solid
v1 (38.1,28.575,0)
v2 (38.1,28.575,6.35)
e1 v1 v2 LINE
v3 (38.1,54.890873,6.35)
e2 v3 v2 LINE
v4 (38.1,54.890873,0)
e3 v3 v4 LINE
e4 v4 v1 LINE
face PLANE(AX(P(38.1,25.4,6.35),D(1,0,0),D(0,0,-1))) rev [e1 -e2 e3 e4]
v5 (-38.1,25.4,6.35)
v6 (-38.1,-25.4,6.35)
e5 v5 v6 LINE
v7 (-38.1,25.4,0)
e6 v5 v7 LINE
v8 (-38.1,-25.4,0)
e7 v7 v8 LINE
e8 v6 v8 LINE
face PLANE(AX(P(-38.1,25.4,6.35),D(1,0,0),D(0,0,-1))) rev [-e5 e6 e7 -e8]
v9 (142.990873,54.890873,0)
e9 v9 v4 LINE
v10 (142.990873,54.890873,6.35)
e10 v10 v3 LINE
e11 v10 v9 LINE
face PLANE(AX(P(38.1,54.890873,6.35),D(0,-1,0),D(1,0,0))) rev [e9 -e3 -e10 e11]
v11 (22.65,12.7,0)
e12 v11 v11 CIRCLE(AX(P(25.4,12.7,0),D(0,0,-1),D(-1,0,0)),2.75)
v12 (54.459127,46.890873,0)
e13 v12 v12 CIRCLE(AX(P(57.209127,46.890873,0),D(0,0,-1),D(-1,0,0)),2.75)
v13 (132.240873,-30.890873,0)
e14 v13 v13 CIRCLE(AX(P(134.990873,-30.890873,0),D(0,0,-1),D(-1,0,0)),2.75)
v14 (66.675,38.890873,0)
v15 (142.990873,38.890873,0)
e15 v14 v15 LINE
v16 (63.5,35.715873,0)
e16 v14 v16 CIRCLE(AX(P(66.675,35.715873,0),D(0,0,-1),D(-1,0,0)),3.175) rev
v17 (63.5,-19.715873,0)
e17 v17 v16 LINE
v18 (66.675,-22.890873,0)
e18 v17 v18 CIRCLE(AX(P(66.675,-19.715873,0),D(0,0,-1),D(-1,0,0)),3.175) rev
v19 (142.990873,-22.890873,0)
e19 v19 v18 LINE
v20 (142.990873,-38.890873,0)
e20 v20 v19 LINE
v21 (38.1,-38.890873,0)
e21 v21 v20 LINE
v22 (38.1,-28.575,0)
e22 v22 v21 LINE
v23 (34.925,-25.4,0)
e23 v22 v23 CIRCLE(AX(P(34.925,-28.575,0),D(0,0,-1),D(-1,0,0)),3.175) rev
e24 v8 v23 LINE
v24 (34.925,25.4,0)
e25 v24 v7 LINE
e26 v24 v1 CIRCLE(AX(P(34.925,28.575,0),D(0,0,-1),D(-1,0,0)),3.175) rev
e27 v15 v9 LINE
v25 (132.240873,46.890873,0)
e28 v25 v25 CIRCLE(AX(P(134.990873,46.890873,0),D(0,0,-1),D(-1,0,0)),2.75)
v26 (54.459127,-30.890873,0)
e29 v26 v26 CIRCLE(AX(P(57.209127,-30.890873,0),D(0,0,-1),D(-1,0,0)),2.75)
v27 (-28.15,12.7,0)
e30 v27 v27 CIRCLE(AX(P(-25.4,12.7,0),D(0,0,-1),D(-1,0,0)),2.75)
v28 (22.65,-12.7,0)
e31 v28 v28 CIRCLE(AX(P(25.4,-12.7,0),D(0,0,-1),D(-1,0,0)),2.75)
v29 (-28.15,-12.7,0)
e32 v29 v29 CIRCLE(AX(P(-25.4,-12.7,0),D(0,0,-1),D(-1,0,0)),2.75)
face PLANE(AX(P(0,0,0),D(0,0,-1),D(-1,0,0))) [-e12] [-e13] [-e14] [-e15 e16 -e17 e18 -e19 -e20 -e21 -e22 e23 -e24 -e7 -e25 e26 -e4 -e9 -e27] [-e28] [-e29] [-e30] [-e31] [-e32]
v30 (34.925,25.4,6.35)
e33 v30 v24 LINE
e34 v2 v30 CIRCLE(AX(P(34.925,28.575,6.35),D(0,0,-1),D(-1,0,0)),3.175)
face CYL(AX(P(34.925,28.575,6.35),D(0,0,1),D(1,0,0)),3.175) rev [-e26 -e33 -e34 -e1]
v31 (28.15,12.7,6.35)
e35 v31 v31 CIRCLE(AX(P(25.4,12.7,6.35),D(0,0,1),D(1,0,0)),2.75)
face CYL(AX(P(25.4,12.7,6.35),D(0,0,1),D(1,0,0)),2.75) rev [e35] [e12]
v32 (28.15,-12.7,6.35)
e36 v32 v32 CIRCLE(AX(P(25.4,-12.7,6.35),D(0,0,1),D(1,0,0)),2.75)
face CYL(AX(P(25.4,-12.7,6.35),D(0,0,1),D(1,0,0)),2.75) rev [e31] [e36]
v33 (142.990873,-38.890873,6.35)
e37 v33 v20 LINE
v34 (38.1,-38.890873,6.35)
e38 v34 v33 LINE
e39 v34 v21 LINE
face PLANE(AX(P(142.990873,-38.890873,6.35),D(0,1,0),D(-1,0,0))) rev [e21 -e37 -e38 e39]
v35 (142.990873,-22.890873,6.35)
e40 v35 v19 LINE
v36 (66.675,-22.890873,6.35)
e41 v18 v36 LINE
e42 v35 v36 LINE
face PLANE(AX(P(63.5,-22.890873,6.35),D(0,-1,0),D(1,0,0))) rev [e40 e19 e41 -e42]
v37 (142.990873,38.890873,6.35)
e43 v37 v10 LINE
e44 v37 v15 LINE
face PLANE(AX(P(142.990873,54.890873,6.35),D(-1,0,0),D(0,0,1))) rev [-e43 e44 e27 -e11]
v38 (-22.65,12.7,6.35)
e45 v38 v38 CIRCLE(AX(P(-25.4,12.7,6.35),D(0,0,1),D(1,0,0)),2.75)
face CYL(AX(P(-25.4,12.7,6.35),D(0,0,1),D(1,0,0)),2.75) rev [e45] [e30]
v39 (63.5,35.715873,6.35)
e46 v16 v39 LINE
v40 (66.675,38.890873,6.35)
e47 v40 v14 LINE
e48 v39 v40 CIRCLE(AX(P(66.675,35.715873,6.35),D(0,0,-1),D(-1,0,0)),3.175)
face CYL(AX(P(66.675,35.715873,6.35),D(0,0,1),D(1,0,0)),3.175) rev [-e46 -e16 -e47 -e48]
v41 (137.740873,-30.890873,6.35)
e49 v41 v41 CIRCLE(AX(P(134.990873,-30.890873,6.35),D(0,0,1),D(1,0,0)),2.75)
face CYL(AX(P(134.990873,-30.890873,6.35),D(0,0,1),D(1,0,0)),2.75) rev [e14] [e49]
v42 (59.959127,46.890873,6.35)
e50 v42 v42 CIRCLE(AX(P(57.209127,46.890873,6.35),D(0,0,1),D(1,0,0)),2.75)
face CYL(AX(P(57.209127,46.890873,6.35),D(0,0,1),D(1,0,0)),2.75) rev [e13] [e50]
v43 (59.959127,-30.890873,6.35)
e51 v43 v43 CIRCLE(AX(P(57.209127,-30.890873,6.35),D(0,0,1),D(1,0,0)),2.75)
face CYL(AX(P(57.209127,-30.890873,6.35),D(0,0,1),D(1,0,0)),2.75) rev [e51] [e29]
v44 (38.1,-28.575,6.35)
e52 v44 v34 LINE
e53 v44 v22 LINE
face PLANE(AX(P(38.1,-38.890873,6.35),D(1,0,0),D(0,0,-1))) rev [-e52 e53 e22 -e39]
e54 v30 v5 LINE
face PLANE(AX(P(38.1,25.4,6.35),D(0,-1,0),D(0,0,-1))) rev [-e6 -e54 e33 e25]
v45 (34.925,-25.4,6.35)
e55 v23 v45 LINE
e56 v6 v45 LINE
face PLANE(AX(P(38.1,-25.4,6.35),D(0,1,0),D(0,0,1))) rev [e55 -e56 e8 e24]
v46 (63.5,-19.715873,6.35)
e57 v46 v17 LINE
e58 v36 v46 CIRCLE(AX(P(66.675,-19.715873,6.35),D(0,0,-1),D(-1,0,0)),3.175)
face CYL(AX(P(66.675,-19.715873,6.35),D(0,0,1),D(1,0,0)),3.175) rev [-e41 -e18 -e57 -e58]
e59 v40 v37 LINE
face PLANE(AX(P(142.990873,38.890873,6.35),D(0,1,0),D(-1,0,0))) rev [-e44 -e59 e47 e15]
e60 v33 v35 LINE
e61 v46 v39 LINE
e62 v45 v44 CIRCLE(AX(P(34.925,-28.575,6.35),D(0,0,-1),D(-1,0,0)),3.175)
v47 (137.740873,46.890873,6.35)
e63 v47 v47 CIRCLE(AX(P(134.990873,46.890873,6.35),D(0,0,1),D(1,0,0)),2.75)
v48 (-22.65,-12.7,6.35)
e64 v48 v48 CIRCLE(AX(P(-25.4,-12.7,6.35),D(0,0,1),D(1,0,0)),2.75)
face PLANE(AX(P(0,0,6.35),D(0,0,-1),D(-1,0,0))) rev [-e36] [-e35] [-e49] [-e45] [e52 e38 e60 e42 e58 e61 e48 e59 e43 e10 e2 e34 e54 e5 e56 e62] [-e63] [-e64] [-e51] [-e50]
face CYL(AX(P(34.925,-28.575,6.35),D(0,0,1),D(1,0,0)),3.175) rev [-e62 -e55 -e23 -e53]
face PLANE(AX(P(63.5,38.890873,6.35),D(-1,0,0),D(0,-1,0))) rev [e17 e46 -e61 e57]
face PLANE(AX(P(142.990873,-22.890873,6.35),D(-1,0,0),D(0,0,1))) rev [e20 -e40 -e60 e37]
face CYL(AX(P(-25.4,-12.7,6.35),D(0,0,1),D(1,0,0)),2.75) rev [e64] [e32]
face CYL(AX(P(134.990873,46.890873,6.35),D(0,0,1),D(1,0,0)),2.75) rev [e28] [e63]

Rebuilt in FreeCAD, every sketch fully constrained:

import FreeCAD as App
import Part
import Sketcher

V = App.Vector
Q = App.Units.Quantity


def edges_at(feature, points):
    """Names of the edges that pass closest to the given points."""
    edges = feature.Shape.Edges
    near = lambda p: min(range(len(edges)), key=lambda i: edges[i].distToShape(Part.Vertex(*p))[0])
    return sorted({f"Edge{near(p) + 1}" for p in points})


def add_polygon(sketch, points):
    """Adds a closed chain of lines whose ends are joined by coincident constraints."""
    first, n = sketch.GeometryCount, len(points)
    for a, b in zip(points, points[1:] + points[:1]):
        sketch.addGeometry(Part.LineSegment(App.Vector(*a, 0), App.Vector(*b, 0)), False)
    for i in range(n):
        sketch.addConstraint(Sketcher.Constraint("Coincident", first + i, 2, first + (i + 1) % n, 1))

doc = App.newDocument("Part")
body = doc.addObject("PartDesign::Body", "Body")

sketch1 = body.newObject("Sketcher::SketchObject", "Sketch")
sketch1.AttachmentSupport = (doc.getObject("XY_Plane"), [""])
sketch1.MapMode = "FlatFace"
add_polygon(sketch1, [(38.1, 54.890873), (38.1, 25.4), (-38.1, 25.4), (-38.1, -25.4), (38.1, -25.4), (38.1, -38.890873), (142.990873, -38.890873), (142.990873, -22.890873), (63.5, -22.890873), (63.5, 38.890873), (142.990873, 38.890873), (142.990873, 54.890873)])
sketch1.addConstraint(Sketcher.Constraint("Vertical", 0))
sketch1.addConstraint(Sketcher.Constraint("Horizontal", 1))
sketch1.addConstraint(Sketcher.Constraint("Vertical", 2))
sketch1.addConstraint(Sketcher.Constraint("Horizontal", 3))
sketch1.addConstraint(Sketcher.Constraint("Vertical", 4))
sketch1.addConstraint(Sketcher.Constraint("Horizontal", 5))
sketch1.addConstraint(Sketcher.Constraint("Vertical", 6))
sketch1.addConstraint(Sketcher.Constraint("Horizontal", 7))
sketch1.addConstraint(Sketcher.Constraint("Vertical", 8))
sketch1.addConstraint(Sketcher.Constraint("Horizontal", 9))
sketch1.addConstraint(Sketcher.Constraint("Vertical", 10))
sketch1.addConstraint(Sketcher.Constraint("Horizontal", 11))
sketch1.addConstraint(Sketcher.Constraint("Symmetric", 0, 2, 2, 2, -1, 1))
sketch1.addConstraint(Sketcher.Constraint("Symmetric", 5, 2, 9, 2, -1))
sketch1.addConstraint(Sketcher.Constraint("Vertical", 0, 2, 3, 2))
sketch1.addConstraint(Sketcher.Constraint("Equal", 6, 10))
sketch1.addConstraint(Sketcher.Constraint("DistanceX", 1, 2, 1, 1, Q("3 in")))
sketch1.addConstraint(Sketcher.Constraint("DistanceY", 2, 2, 2, 1, Q("2 in")))
sketch1.addConstraint(Sketcher.Constraint("DistanceX", 3, 2, 7, 2, Q("1 in")))
sketch1.addConstraint(Sketcher.Constraint("DistanceY", 6, 1, 6, 2, 16.0))
sketch1.addConstraint(Sketcher.Constraint("DistanceX", 5, 1, 5, 2, 104.890873))
sketch1.addConstraint(Sketcher.Constraint("DistanceY", 0, 2, 0, 1, 29.490873))
pad1 = body.newObject("PartDesign::Pad", "Pad")
pad1.Profile = sketch1
pad1.Length = Q("0.25 in")

sketch2 = body.newObject("Sketcher::SketchObject", "Sketch001")
sketch2.AttachmentSupport = (doc.getObject("XY_Plane"), [""])
sketch2.MapMode = "FlatFace"
sketch2.AttachmentOffset = App.Placement(V(0, 0, 0.25 * 25.4), App.Rotation())
sketch2.addGeometry(Part.Circle(V(134.990873, 46.890873, 0), V(0, 0, 1), 2.75), False)
sketch2.addGeometry(Part.Circle(V(134.990873, -30.890873, 0), V(0, 0, 1), 2.75), False)
sketch2.addGeometry(Part.Circle(V(57.209127, 46.890873, 0), V(0, 0, 1), 2.75), False)
sketch2.addGeometry(Part.Circle(V(57.209127, -30.890873, 0), V(0, 0, 1), 2.75), False)
sketch2.addConstraint(Sketcher.Constraint("Equal", 0, 1))
sketch2.addConstraint(Sketcher.Constraint("Equal", 1, 2))
sketch2.addConstraint(Sketcher.Constraint("Equal", 2, 3))
sketch2.addConstraint(Sketcher.Constraint("Horizontal", 0, 3, 2, 3))
sketch2.addConstraint(Sketcher.Constraint("Horizontal", 1, 3, 3, 3))
sketch2.addConstraint(Sketcher.Constraint("Vertical", 0, 3, 1, 3))
sketch2.addConstraint(Sketcher.Constraint("Vertical", 2, 3, 3, 3))
sketch2.addConstraint(Sketcher.Constraint("Diameter", 0, 5.5))
sketch2.addConstraint(Sketcher.Constraint("DistanceX", -1, 1, 0, 3, 134.990873))
sketch2.addConstraint(Sketcher.Constraint("DistanceY", -1, 1, 0, 3, 46.890873))
sketch2.addConstraint(Sketcher.Constraint("DistanceY", 1, 3, -1, 1, 30.890873))
sketch2.addConstraint(Sketcher.Constraint("DistanceX", -1, 1, 2, 3, 57.209127))
doc.recompute()
hole = body.newObject("PartDesign::Hole", "Hole")
hole.Profile = sketch2
hole.ThreadType = "None"
hole.Diameter = 5.5
hole.DepthType = "Dimension"
hole.Depth = 18.75
hole.DrillPoint = "Angled"
hole.DrillPointAngle = 118
doc.recompute()

fillet = body.newObject("PartDesign::Fillet", "Fillet")
fillet.Base = (hole, edges_at(hole, [
    (38.1, 25.4, 3.175),
    (63.5, 38.891, 3.175),
    (63.5, -22.891, 3.175),
    (38.1, -25.4, 3.175),
]))
fillet.Radius = Q("0.125 in")

sketch3 = body.newObject("Sketcher::SketchObject", "Sketch002")
sketch3.AttachmentSupport = (doc.getObject("XY_Plane"), [""])
sketch3.MapMode = "FlatFace"
sketch3.AttachmentOffset = App.Placement(V(0, 0, 0.25 * 25.4), App.Rotation())
sketch3.addGeometry(Part.Circle(V(-25.4, 12.7, 0), V(0, 0, 1), 2.75), False)
sketch3.addGeometry(Part.Circle(V(25.4, 12.7, 0), V(0, 0, 1), 2.75), False)
sketch3.addGeometry(Part.Circle(V(25.4, -12.7, 0), V(0, 0, 1), 2.75), False)
sketch3.addGeometry(Part.Circle(V(-25.4, -12.7, 0), V(0, 0, 1), 2.75), False)
sketch3.addConstraint(Sketcher.Constraint("Equal", 0, 1))
sketch3.addConstraint(Sketcher.Constraint("Equal", 1, 2))
sketch3.addConstraint(Sketcher.Constraint("Equal", 2, 3))
sketch3.addConstraint(Sketcher.Constraint("Symmetric", 0, 3, 2, 3, -1, 1))
sketch3.addConstraint(Sketcher.Constraint("Symmetric", 1, 3, 3, 3, -1, 1))
sketch3.addConstraint(Sketcher.Constraint("Symmetric", 0, 3, 1, 3, -2))
sketch3.addConstraint(Sketcher.Constraint("DistanceX", 0, 3, -1, 1, Q("1 in")))
sketch3.addConstraint(Sketcher.Constraint("DistanceY", 2, 3, 1, 3, Q("1 in")))
sketch3.addConstraint(Sketcher.Constraint("Diameter", 0, 5.5))
doc.recompute()
hole2 = body.newObject("PartDesign::Hole", "Hole001")
hole2.Profile = sketch3
hole2.ThreadType = "None"
hole2.Diameter = 5.5
hole2.DepthType = "Dimension"
hole2.Depth = 18.75
hole2.DrillPoint = "Angled"
hole2.DrillPointAngle = 118

doc.recompute()
